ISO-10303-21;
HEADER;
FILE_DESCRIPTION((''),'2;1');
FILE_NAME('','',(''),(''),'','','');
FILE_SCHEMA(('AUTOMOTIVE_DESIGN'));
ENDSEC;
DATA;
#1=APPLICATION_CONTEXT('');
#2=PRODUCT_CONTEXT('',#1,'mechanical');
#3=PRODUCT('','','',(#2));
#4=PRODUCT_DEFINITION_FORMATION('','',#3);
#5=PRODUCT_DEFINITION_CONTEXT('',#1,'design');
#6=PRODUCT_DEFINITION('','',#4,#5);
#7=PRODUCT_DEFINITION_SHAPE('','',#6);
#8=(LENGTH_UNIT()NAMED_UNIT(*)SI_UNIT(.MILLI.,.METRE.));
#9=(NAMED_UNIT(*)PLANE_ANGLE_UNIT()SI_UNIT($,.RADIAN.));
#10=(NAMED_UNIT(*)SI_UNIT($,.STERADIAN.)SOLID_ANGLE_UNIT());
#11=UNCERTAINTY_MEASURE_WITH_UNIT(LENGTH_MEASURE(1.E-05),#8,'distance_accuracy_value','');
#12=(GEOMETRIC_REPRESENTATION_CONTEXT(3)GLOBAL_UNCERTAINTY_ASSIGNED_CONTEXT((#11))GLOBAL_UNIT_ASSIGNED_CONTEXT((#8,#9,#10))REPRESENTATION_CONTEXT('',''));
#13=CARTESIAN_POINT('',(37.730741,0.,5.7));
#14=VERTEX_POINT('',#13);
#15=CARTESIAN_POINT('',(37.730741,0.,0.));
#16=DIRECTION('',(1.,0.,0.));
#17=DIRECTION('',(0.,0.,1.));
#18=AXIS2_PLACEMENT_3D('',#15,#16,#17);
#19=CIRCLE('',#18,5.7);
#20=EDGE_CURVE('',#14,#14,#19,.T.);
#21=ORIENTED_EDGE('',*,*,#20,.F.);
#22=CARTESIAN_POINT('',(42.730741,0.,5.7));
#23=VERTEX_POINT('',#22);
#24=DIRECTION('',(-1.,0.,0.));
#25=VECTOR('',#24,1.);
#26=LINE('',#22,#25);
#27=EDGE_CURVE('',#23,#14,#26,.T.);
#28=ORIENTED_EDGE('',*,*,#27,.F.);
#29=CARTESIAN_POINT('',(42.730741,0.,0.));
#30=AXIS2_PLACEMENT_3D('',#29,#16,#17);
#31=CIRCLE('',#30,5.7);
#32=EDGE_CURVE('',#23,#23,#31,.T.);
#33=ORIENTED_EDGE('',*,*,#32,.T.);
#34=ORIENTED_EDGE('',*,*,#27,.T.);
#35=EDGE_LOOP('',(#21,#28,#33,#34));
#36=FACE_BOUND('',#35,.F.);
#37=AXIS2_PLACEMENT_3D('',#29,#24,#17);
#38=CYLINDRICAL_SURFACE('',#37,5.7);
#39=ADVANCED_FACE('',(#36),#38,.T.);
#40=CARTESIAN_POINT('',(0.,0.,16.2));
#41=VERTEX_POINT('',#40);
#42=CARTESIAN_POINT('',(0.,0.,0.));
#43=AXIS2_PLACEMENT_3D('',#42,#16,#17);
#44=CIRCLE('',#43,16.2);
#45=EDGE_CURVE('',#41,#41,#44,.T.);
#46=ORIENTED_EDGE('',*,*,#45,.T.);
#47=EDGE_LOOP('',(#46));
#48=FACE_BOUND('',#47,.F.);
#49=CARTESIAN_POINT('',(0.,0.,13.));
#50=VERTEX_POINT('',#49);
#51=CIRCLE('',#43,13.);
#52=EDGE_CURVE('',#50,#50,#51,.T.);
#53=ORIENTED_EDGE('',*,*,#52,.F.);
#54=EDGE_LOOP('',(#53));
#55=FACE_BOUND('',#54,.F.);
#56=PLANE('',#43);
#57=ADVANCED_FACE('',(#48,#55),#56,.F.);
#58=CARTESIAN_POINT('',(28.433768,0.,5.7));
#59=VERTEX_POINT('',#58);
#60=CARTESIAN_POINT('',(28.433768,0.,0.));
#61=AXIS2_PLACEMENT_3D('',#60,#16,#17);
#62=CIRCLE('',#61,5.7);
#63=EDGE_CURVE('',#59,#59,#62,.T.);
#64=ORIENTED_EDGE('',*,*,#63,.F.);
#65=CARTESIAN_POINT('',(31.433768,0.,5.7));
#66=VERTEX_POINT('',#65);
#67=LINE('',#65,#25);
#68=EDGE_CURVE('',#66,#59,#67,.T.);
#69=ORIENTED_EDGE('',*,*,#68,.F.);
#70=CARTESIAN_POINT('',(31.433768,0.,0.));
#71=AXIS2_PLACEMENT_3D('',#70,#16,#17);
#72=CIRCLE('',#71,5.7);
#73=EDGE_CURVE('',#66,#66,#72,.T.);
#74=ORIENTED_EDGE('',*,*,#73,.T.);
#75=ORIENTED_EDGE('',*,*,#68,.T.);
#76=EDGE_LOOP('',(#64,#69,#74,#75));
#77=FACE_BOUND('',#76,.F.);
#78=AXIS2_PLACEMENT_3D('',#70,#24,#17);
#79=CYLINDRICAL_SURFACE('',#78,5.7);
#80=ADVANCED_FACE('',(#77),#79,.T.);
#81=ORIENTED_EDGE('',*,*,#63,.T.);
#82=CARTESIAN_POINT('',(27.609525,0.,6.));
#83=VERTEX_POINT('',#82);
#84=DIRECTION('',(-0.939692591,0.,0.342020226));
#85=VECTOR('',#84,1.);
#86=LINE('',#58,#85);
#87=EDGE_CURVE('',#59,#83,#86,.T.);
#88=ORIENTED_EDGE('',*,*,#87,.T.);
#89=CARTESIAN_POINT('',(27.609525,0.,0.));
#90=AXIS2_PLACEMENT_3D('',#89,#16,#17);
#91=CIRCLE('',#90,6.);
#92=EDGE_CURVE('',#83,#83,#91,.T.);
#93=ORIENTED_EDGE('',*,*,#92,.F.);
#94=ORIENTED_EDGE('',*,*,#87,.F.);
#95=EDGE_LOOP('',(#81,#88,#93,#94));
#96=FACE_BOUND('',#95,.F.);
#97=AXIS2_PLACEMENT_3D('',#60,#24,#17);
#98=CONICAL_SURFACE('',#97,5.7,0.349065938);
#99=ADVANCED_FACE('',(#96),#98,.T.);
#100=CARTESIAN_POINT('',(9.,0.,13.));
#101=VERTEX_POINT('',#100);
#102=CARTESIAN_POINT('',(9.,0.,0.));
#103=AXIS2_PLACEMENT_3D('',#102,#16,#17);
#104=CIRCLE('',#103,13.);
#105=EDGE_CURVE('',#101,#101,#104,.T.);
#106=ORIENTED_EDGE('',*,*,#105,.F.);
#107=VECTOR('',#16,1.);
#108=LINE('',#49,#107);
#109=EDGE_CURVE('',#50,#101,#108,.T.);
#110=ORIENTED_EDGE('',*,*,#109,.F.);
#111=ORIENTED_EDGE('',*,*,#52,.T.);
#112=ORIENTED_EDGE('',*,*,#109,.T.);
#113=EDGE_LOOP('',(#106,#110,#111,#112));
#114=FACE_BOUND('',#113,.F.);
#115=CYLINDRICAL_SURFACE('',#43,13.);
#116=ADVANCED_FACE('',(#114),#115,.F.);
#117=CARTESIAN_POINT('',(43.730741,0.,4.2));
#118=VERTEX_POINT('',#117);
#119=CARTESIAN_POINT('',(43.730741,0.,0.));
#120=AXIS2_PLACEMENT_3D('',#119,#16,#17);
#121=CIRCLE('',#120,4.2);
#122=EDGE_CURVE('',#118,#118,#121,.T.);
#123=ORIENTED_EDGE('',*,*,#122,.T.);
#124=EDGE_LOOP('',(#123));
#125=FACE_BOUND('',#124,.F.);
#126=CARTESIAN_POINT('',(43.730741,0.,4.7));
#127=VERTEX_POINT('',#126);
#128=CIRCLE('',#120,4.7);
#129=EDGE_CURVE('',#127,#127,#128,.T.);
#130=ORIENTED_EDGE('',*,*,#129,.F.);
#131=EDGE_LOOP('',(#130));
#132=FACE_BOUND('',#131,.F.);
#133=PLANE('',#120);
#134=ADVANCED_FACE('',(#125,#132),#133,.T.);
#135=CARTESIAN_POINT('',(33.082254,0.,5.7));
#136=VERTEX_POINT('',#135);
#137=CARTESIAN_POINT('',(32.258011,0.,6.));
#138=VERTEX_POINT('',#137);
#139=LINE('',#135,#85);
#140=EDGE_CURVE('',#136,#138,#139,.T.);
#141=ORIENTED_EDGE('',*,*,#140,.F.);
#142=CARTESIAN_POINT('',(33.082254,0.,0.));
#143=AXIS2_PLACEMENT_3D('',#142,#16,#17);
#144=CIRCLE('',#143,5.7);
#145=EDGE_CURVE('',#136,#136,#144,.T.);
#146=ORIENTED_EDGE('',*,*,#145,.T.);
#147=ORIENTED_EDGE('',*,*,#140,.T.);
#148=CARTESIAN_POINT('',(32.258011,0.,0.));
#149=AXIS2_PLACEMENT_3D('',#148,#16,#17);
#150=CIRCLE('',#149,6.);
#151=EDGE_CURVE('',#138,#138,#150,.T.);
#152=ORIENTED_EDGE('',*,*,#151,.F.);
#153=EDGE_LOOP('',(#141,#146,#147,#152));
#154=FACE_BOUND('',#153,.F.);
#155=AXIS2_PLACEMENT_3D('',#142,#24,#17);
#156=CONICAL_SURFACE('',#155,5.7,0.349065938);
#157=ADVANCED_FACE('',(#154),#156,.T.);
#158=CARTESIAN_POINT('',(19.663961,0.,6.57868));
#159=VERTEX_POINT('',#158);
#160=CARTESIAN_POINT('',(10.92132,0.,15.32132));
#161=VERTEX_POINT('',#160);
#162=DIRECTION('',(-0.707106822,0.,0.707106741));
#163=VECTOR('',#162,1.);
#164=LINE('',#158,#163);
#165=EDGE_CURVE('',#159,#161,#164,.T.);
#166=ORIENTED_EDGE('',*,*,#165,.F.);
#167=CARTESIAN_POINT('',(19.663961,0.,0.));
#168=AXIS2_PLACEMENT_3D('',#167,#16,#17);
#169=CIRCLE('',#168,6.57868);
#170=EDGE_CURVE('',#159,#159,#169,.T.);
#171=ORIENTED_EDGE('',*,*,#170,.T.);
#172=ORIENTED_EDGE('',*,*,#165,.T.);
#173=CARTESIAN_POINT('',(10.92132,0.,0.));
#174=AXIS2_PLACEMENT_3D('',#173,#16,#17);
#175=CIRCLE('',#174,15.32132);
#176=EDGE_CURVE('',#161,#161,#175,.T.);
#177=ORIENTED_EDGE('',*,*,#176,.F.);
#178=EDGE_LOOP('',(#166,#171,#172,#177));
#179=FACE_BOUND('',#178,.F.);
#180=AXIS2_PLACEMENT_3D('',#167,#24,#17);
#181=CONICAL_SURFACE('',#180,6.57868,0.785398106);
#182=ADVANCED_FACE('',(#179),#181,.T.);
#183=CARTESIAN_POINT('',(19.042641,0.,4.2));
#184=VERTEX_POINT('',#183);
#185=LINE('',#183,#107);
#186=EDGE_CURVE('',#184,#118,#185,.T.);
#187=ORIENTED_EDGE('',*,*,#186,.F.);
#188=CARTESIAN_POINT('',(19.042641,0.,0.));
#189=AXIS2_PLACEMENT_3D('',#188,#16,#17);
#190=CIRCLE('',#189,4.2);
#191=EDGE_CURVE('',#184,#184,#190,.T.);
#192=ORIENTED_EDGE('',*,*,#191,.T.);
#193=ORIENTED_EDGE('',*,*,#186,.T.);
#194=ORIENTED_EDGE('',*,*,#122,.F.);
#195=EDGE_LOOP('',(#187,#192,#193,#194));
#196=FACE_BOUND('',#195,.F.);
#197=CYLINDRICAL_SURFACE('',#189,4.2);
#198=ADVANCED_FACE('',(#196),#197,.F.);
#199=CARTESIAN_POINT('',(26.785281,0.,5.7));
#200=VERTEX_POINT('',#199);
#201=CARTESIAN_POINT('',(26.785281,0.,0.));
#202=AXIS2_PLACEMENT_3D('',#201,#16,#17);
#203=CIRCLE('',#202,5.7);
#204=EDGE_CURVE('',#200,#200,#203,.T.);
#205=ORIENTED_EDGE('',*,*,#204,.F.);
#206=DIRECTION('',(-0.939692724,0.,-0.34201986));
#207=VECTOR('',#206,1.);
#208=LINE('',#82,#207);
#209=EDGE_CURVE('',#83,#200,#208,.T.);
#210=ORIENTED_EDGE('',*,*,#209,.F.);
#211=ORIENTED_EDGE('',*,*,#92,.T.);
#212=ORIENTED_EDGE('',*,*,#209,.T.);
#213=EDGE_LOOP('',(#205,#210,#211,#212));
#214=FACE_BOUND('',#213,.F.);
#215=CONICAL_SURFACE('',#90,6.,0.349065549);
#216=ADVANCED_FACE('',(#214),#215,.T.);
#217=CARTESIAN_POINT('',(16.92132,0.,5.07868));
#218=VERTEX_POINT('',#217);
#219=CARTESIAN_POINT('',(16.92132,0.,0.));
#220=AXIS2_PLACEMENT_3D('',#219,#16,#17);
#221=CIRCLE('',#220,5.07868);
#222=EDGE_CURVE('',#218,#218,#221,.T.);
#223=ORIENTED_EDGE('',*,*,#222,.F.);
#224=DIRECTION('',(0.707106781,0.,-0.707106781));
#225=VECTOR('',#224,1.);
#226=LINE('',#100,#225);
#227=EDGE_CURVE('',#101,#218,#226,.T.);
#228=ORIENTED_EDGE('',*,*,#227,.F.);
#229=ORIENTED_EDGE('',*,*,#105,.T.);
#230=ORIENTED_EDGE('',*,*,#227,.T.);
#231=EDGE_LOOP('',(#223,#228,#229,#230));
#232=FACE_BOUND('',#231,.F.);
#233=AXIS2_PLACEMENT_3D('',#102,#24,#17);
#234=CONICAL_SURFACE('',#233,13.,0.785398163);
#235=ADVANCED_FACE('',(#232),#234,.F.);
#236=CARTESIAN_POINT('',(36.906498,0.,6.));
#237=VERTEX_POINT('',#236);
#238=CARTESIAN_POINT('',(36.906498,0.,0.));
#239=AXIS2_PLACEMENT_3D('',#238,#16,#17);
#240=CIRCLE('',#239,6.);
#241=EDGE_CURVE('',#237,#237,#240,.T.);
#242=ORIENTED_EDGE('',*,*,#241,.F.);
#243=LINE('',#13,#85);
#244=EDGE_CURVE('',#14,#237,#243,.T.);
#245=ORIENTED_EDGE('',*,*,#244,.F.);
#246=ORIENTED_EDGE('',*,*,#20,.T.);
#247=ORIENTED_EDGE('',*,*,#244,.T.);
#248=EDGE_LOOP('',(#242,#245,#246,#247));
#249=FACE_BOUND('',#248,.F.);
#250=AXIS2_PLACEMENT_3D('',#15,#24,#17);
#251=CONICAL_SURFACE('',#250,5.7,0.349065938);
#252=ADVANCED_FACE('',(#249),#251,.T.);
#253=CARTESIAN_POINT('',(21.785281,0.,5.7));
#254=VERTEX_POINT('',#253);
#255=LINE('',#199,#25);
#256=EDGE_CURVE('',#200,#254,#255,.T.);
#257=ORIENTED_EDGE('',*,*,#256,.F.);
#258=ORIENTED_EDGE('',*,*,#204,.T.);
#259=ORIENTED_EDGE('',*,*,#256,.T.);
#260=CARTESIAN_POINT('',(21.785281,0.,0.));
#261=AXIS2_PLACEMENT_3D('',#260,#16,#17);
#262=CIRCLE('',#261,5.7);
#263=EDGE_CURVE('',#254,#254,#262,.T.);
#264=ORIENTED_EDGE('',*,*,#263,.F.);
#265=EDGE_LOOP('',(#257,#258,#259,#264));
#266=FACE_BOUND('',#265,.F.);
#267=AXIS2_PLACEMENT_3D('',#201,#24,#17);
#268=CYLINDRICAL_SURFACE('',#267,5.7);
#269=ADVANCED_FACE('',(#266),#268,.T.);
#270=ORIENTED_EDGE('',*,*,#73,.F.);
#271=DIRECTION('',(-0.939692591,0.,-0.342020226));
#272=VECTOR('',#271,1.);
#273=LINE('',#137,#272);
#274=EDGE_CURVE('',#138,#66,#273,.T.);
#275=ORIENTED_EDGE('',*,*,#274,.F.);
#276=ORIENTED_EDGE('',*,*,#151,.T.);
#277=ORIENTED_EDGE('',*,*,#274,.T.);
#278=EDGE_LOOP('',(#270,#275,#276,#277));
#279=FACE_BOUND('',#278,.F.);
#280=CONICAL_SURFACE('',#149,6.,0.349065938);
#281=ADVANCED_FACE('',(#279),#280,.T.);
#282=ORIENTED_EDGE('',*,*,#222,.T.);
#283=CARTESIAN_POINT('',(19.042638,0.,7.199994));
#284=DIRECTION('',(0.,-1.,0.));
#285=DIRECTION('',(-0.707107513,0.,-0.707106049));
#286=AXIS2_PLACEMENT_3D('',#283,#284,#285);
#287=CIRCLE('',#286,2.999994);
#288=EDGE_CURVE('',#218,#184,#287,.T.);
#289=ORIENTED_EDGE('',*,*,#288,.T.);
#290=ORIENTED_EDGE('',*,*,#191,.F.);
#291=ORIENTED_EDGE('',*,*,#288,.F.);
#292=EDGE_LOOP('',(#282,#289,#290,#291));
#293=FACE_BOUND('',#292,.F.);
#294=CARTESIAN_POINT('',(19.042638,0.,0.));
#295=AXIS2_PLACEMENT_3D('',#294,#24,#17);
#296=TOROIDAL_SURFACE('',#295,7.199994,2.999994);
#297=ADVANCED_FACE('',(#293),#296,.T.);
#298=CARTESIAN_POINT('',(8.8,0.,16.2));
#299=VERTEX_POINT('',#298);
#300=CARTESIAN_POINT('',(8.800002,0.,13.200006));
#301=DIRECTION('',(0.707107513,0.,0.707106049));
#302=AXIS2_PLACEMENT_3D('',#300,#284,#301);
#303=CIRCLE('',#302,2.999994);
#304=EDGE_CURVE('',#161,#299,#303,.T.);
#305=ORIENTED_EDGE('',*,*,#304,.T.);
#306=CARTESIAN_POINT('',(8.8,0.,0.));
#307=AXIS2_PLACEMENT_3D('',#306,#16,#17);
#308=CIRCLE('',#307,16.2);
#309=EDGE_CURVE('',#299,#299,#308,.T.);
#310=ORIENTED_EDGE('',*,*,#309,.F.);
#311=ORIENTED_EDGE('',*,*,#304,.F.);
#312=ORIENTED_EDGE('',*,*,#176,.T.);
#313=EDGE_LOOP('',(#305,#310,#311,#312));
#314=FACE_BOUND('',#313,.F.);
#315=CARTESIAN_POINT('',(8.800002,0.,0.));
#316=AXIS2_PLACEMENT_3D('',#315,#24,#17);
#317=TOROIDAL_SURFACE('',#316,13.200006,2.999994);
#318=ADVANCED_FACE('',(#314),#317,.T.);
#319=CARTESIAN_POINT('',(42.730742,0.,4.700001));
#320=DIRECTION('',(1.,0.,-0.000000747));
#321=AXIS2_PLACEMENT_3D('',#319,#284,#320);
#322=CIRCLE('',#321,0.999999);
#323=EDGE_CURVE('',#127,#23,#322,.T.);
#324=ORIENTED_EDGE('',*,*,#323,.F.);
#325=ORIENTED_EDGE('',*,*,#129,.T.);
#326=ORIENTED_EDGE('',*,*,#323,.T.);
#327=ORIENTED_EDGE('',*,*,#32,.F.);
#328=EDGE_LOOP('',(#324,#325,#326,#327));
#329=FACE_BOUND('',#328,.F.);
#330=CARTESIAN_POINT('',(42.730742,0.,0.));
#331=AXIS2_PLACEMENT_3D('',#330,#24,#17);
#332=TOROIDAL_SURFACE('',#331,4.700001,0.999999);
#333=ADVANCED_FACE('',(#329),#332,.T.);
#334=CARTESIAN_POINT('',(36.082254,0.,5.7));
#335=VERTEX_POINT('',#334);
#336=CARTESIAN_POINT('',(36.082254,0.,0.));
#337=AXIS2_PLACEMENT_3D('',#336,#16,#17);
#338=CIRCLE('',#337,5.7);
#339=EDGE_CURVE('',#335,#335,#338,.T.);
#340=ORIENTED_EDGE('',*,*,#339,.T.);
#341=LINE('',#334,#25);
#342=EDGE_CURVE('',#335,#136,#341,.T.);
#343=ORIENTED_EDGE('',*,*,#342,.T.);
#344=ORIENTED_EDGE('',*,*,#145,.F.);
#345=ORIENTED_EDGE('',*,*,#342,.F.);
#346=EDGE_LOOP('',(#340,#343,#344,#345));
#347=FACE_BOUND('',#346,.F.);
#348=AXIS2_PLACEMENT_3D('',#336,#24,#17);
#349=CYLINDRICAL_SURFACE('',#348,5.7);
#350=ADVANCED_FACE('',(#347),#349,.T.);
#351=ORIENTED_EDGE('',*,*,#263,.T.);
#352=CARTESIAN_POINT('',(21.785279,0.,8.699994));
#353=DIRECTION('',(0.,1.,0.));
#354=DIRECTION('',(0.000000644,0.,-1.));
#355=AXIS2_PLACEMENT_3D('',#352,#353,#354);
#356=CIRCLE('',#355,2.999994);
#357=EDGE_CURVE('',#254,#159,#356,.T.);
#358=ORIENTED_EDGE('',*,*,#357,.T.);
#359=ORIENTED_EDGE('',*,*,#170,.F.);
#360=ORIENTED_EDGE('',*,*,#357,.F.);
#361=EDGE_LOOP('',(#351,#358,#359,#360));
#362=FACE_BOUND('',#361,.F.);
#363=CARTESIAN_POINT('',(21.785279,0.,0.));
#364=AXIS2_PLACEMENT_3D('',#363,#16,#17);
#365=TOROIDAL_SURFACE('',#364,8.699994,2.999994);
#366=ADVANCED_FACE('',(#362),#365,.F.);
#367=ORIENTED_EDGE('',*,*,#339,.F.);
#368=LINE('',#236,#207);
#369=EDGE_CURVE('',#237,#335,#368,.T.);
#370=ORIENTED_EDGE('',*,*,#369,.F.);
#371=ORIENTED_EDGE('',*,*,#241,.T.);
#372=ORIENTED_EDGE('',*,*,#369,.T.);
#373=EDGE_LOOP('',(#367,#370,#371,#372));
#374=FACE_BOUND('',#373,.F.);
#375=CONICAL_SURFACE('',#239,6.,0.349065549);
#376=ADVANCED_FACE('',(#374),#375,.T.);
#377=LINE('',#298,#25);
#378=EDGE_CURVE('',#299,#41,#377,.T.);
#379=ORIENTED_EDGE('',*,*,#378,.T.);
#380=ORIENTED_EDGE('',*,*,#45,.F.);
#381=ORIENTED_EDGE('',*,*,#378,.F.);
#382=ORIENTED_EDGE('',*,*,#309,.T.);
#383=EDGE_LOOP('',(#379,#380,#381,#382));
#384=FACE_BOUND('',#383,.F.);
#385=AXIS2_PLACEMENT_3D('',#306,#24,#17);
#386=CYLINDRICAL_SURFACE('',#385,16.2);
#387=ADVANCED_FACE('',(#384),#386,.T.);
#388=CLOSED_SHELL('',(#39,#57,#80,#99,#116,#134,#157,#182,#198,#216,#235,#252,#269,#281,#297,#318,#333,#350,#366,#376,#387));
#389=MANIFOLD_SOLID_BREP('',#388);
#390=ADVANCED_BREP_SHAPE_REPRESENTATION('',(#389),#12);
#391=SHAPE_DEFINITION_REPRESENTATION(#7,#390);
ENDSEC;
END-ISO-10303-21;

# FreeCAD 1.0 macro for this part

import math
import FreeCAD as App
import Part
import Sketcher

V = App.Vector
Q = App.Units.Quantity

doc = App.newDocument("Part")
body = doc.addObject("PartDesign::Body", "Body")

sketch1 = body.newObject("Sketcher::SketchObject", "Sketch")
sketch1.AttachmentSupport = (doc.getObject("XZ_Plane"), [""])
sketch1.MapMode = "FlatFace"
sketch1.addGeometry([
    Part.LineSegment(V(0, 16.2, 0), V(0, 13, 0)),
    Part.LineSegment(V(0, 13, 0), V(9, 13, 0)),
    Part.LineSegment(V(9, 13, 0), V(16.9, 5.1, 0)),
    Part.ArcOfCircle(Part.Circle(V(19, 7.2, 0), V(0, 0, 1), 3), math.radians(-135), math.radians(-90)),
    Part.LineSegment(V(19, 4.2, 0), V(43.7, 4.2, 0)),
    Part.LineSegment(V(43.7, 4.2, 0), V(43.7, 4.7, 0)),
    Part.ArcOfCircle(Part.Circle(V(42.7, 4.7, 0), V(0, 0, 1), 1), math.radians(0), math.radians(90)),
    Part.LineSegment(V(42.7, 5.7, 0), V(37.7, 5.7, 0)),
    Part.LineSegment(V(37.7, 5.7, 0), V(36.9, 6, 0)),
    Part.LineSegment(V(36.9, 6, 0), V(36.1, 5.7, 0)),
    Part.LineSegment(V(36.1, 5.7, 0), V(33.1, 5.7, 0)),
    Part.LineSegment(V(33.1, 5.7, 0), V(32.3, 6, 0)),
    Part.LineSegment(V(32.3, 6, 0), V(31.4, 5.7, 0)),
    Part.LineSegment(V(31.4, 5.7, 0), V(28.4, 5.7, 0)),
    Part.LineSegment(V(28.4, 5.7, 0), V(27.6, 6, 0)),
    Part.LineSegment(V(27.6, 6, 0), V(26.8, 5.7, 0)),
    Part.LineSegment(V(26.8, 5.7, 0), V(21.8, 5.7, 0)),
    Part.ArcOfCircle(Part.Circle(V(21.8, 8.7, 0), V(0, 0, 1), 3), math.radians(-135), math.radians(-90)),
    Part.LineSegment(V(19.7, 6.6, 0), V(10.9, 15.3, 0)),
    Part.ArcOfCircle(Part.Circle(V(8.8, 13.2, 0), V(0, 0, 1), 3), math.radians(45), math.radians(90)),
    Part.LineSegment(V(8.8, 16.2, 0), V(0, 16.2, 0)),
], False)
sketch1.addConstraint([
    Sketcher.Constraint("Coincident", 0, 2, 1, 1),
    Sketcher.Constraint("Coincident", 1, 2, 2, 1),
    Sketcher.Constraint("Tangent", 2, 2, 3, 1),
    Sketcher.Constraint("Tangent", 3, 2, 4, 1),
    Sketcher.Constraint("Coincident", 4, 2, 5, 1),
    Sketcher.Constraint("Tangent", 5, 2, 6, 1),
    Sketcher.Constraint("Tangent", 6, 2, 7, 1),
    Sketcher.Constraint("Coincident", 7, 2, 8, 1),
    Sketcher.Constraint("Coincident", 8, 2, 9, 1),
    Sketcher.Constraint("Coincident", 9, 2, 10, 1),
    Sketcher.Constraint("Coincident", 10, 2, 11, 1),
    Sketcher.Constraint("Coincident", 11, 2, 12, 1),
    Sketcher.Constraint("Coincident", 12, 2, 13, 1),
    Sketcher.Constraint("Coincident", 13, 2, 14, 1),
    Sketcher.Constraint("Coincident", 14, 2, 15, 1),
    Sketcher.Constraint("Coincident", 15, 2, 16, 1),
    Sketcher.Constraint("Tangent", 16, 2, 17, 2),
    Sketcher.Constraint("Tangent", 17, 1, 18, 1),
    Sketcher.Constraint("Tangent", 18, 2, 19, 1),
    Sketcher.Constraint("Tangent", 19, 2, 20, 1),
    Sketcher.Constraint("Coincident", 20, 2, 0, 1),
    Sketcher.Constraint("Vertical", 0),
    Sketcher.Constraint("Horizontal", 1),
    Sketcher.Constraint("Horizontal", 4),
    Sketcher.Constraint("Vertical", 5),
    Sketcher.Constraint("Horizontal", 7),
    Sketcher.Constraint("Horizontal", 10),
    Sketcher.Constraint("Horizontal", 13),
    Sketcher.Constraint("Horizontal", 16),
    Sketcher.Constraint("Horizontal", 20),
    Sketcher.Constraint("Equal", 3, 17),
    Sketcher.Constraint("Equal", 17, 19),
    Sketcher.Constraint("PointOnObject", 0, 2, -2),
    Sketcher.Constraint("Parallel", 8, 11),
    Sketcher.Constraint("Parallel", 9, 12),
    Sketcher.Constraint("Parallel", 11, 14),
    Sketcher.Constraint("Parallel", 12, 15),
    Sketcher.Constraint("Parallel", 2, 18),
    Sketcher.Constraint("Horizontal", 7, 2, 9, 2),
    Sketcher.Constraint("Horizontal", 8, 2, 11, 2),
    Sketcher.Constraint("Horizontal", 10, 2, 12, 2),
    Sketcher.Constraint("Horizontal", 11, 2, 14, 2),
    Sketcher.Constraint("Horizontal", 13, 2, 15, 2),
    Sketcher.Constraint("Equal", 10, 13),
    Sketcher.Constraint("Equal", 7, 16),
    Sketcher.Constraint("Equal", 8, 9),
    Sketcher.Constraint("Radius", 6, Q("0.999999 mm")),
    Sketcher.Constraint("DistanceX", 1, 1, 1, 2, Q("9 mm")),
    Sketcher.Constraint("DistanceX", 7, 2, 7, 1, Q("5 mm")),
    Sketcher.Constraint("DistanceX", 10, 2, 10, 1, Q("3 mm")),
    Sketcher.Constraint("Angle", 2, Q("-45 deg")),
    Sketcher.Constraint("Angle", 8, Q("159.999995 deg")),
    Sketcher.Constraint("DistanceX", 20, 2, 20, 1, Q("8.8 mm")),
    Sketcher.Constraint("DistanceY", 0, 2, 0, 1, Q("3.2 mm")),
    Sketcher.Constraint("DistanceY", 5, 1, 5, 2, Q("0.5 mm")),
    Sketcher.Constraint("DistanceY", -1, 1, 0, 2, Q("13 mm")),
    Sketcher.Constraint("DistanceY", -1, 1, 8, 2, Q("6 mm")),
    Sketcher.Constraint("DistanceX", 18, 2, 2, 2, Q("6 mm")),
    Sketcher.Constraint("DistanceY", -1, 1, 6, 3, Q("4.700001 mm")),
])
revolution = body.newObject("PartDesign::Revolution", "Revolution")
revolution.Profile = sketch1
revolution.ReferenceAxis = (sketch1, ["H_Axis"])
revolution.Angle = 360

doc.recompute()
